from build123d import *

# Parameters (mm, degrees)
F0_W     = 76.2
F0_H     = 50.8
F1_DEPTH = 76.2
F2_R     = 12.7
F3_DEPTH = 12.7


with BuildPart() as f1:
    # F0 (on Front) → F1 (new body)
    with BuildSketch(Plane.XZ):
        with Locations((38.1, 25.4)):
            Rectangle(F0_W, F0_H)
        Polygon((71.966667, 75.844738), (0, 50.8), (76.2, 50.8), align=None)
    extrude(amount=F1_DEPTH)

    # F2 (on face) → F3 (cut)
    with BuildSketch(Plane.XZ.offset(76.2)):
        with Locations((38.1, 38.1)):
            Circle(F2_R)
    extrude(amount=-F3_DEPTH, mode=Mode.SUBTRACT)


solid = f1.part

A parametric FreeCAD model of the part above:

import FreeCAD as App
import Part
import Sketcher

V = App.Vector
Q = App.Units.Quantity

doc = App.newDocument("Part")
params = doc.addObject("Spreadsheet::Sheet", "Params")
for row, (alias, value) in enumerate([
    ("sketch1_width", "3 in"),
    ("sketch1_height", "2 in"),
    ("sketch1_length", "1 in"),
    ("sketch1_length2", "3 in"),
    ("pad1_length", "3 in"),
    ("sketch2_diameter", "1 in"),
    ("pocket1_length", "0.5 in"),
], start=1):
    params.set(f"A{row}", alias)
    params.set(f"B{row}", "=" + value)
    params.setAlias(f"B{row}", alias)

body = doc.addObject("PartDesign::Body", "Body")

sketch1 = doc.addObject("Sketcher::SketchObject", "Sketch")
body.addObject(sketch1)
sketch1.AttachmentSupport = (doc.XZ_Plane, [""])
sketch1.MapMode = "FlatFace"
sketch1.addGeometry([
    Part.LineSegment(V(0, 50.8, 0), V(0, 0, 0)),
    Part.LineSegment(V(0, 0, 0), V(76.2, 0, 0)),
    Part.LineSegment(V(76.2, 0, 0), V(76.2, 50.8, 0)),
    Part.LineSegment(V(76.2, 50.8, 0), V(71.966667, 75.844738, 0)),
    Part.LineSegment(V(71.966667, 75.844738, 0), V(0, 50.8, 0)),
], False)
sketch1.addConstraint([
    Sketcher.Constraint("Coincident", 0, 2, 1, 1),
    Sketcher.Constraint("Coincident", 1, 2, 2, 1),
    Sketcher.Constraint("Coincident", 2, 2, 3, 1),
    Sketcher.Constraint("Coincident", 3, 2, 4, 1),
    Sketcher.Constraint("Coincident", 4, 2, 0, 1),
    Sketcher.Constraint("Vertical", 0),
    Sketcher.Constraint("Horizontal", 1),
    Sketcher.Constraint("Vertical", 2),
    Sketcher.Constraint("Coincident", 0, 2, -1, 1),
    Sketcher.Constraint("Horizontal", 2, 2, 4, 2),
    Sketcher.Constraint("DistanceX", 1, 1, 1, 2, Q("3 in")),
    Sketcher.Constraint("DistanceY", 0, 2, 0, 1, Q("2 in")),
    Sketcher.Constraint("Distance", 3, Q("1 in")),
    Sketcher.Constraint("Distance", 4, Q("3 in")),
])
sketch1.setExpression("Constraints[10]", "Params.sketch1_width")
sketch1.setExpression("Constraints[11]", "Params.sketch1_height")
sketch1.setExpression("Constraints[12]", "Params.sketch1_length")
sketch1.setExpression("Constraints[13]", "Params.sketch1_length2")
pad1 = doc.addObject("PartDesign::Pad", "Pad")
body.addObject(pad1)
pad1.Profile = sketch1
pad1.setExpression("Length", "Params.pad1_length")

sketch2 = doc.addObject("Sketcher::SketchObject", "Sketch001")
body.addObject(sketch2)
sketch2.AttachmentSupport = (doc.XZ_Plane, [""])
sketch2.MapMode = "FlatFace"
sketch2.AttachmentOffset = App.Placement(V(0, 0, 3 * 25.4), App.Rotation())
sketch2.addGeometry(Part.Circle(V(38.1, 38.1, 0), V(0, 0, 1), 12.7), False)
sketch2.addConstraint([
    Sketcher.Constraint("Diameter", 0, Q("1 in")),
    Sketcher.Constraint("DistanceX", -1, 1, 0, 3, Q("1.5 in")),
    Sketcher.Constraint("DistanceY", -1, 1, 0, 3, Q("1.5 in")),
])
sketch2.setExpression("Constraints[0]", "Params.sketch2_diameter")
pocket1 = doc.addObject("PartDesign::Pocket", "Pocket")
body.addObject(pocket1)
pocket1.Profile = sketch2
pocket1.setExpression("Length", "Params.pocket1_length")

doc.recompute()
